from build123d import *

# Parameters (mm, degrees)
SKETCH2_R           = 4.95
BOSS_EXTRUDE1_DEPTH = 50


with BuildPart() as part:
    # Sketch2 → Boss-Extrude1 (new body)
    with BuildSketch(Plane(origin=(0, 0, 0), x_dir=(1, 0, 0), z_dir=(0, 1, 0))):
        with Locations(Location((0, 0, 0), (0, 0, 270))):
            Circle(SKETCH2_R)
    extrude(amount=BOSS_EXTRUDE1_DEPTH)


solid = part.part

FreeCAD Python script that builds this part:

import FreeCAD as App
import Part
import Sketcher
from FreeCAD import Vector

doc = App.newDocument("Part")
params = doc.addObject("Spreadsheet::Sheet", "Params")
for row, (alias, value) in enumerate([
    ("sketch1_diameter", "9.9 mm"),
    ("pad1_length", "50 mm"),
], start=1):
    params.set(f"A{row}", alias)
    params.set(f"B{row}", "=" + value)
    params.setAlias(f"B{row}", alias)

body = doc.addObject("PartDesign::Body", "Body")

sketch1 = doc.addObject("Sketcher::SketchObject", "Sketch")
body.addObject(sketch1)
sketch1.AttachmentSupport = (doc.XZ_Plane, [""])
sketch1.MapMode = "FlatFace"
sketch1.addGeometry(Part.Circle(Vector(0, 0, 0), Vector(0, 0, 1), 4.95), False)
sketch1.addConstraint([
    Sketcher.Constraint("Coincident", 0, 3, -1, 1),
    Sketcher.Constraint("Diameter", 0, 9.9),
])
sketch1.setExpression("Constraints[1]", "Params.sketch1_diameter")
pad1 = doc.addObject("PartDesign::Pad", "Pad")
body.addObject(pad1)
pad1.Profile = sketch1
pad1.setExpression("Length", "Params.pad1_length")
pad1.Reversed = True

doc.recompute()
